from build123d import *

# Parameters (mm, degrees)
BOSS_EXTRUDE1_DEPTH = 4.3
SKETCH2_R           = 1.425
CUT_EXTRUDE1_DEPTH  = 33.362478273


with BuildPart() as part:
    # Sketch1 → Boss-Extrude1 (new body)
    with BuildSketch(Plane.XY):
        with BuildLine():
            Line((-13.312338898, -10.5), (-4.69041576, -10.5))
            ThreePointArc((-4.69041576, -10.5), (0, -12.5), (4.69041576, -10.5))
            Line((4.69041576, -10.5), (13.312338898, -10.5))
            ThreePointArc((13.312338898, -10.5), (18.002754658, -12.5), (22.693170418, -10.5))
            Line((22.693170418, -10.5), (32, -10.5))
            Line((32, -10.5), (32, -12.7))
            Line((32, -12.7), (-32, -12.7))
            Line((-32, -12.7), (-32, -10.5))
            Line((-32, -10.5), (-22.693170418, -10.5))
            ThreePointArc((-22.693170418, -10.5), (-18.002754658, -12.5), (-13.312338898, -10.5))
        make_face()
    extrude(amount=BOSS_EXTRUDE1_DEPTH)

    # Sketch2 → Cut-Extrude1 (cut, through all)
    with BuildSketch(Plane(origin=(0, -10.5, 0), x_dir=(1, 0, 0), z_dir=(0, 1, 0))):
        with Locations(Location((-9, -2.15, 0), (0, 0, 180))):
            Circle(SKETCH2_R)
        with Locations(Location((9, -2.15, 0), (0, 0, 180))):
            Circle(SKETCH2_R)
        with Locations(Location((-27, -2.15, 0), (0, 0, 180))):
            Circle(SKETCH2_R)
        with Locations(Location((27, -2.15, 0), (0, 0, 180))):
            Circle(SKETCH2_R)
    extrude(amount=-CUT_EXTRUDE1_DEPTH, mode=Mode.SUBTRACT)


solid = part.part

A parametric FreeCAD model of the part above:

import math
import FreeCAD as App
import Part
import Sketcher

V = App.Vector

doc = App.newDocument("Part")
body = doc.addObject("PartDesign::Body", "Body")

sketch1 = body.newObject("Sketcher::SketchObject", "Sketch")
sketch1.AttachmentSupport = (doc.getObject("XY_Plane"), [""])
sketch1.MapMode = "FlatFace"
sketch1.addGeometry([
    Part.LineSegment(V(-4.690416, -10.5, 0), V(-13.312339, -10.5, 0)),
    Part.ArcOfCircle(Part.Circle(V(-18.002755, -6, 0), V(0, 0, 1), 6.5), math.radians(-136.186939), math.radians(-43.813061)),
    Part.LineSegment(V(-22.69317, -10.5, 0), V(-32, -10.5, 0)),
    Part.LineSegment(V(-32, -10.5, 0), V(-32, -12.7, 0)),
    Part.LineSegment(V(-32, -12.7, 0), V(32, -12.7, 0)),
    Part.LineSegment(V(32, -12.7, 0), V(32, -10.5, 0)),
    Part.LineSegment(V(32, -10.5, 0), V(22.69317, -10.5, 0)),
    Part.ArcOfCircle(Part.Circle(V(18.002755, -6, 0), V(0, 0, 1), 6.5), math.radians(-136.186939), math.radians(-43.813061)),
    Part.LineSegment(V(13.312339, -10.5, 0), V(4.690416, -10.5, 0)),
    Part.ArcOfCircle(Part.Circle(V(0, -6, 0), V(0, 0, 1), 6.5), math.radians(-136.186939), math.radians(-43.813061)),
], False)
sketch1.addConstraint([
    Sketcher.Constraint("Coincident", 0, 2, 1, 2),
    Sketcher.Constraint("Coincident", 1, 1, 2, 1),
    Sketcher.Constraint("Coincident", 2, 2, 3, 1),
    Sketcher.Constraint("Coincident", 3, 2, 4, 1),
    Sketcher.Constraint("Coincident", 4, 2, 5, 1),
    Sketcher.Constraint("Coincident", 5, 2, 6, 1),
    Sketcher.Constraint("Coincident", 6, 2, 7, 2),
    Sketcher.Constraint("Coincident", 7, 1, 8, 1),
    Sketcher.Constraint("Coincident", 8, 2, 9, 2),
    Sketcher.Constraint("Coincident", 9, 1, 0, 1),
    Sketcher.Constraint("Horizontal", 0),
    Sketcher.Constraint("Horizontal", 2),
    Sketcher.Constraint("Vertical", 3),
    Sketcher.Constraint("Horizontal", 4),
    Sketcher.Constraint("Vertical", 5),
    Sketcher.Constraint("Horizontal", 6),
    Sketcher.Constraint("Horizontal", 8),
    Sketcher.Constraint("Equal", 1, 7),
    Sketcher.Constraint("Equal", 7, 9),
    Sketcher.Constraint("Symmetric", 1, 3, 7, 3, -2),
    Sketcher.Constraint("Symmetric", 2, 2, 5, 2, -2),
    Sketcher.Constraint("Symmetric", 8, 2, 9, 1, -2),
    Sketcher.Constraint("Horizontal", 7, 3, 9, 3),
    Sketcher.Constraint("Horizontal", 0, 2, 1, 1),
    Sketcher.Constraint("Radius", 1, 6.5),
    Sketcher.Constraint("DistanceX", 4, 1, 4, 2, 64.0),
    Sketcher.Constraint("DistanceY", 3, 2, 3, 1, 2.2),
    Sketcher.Constraint("DistanceY", 1, 3, -1, 1, 6.0),
    Sketcher.Constraint("DistanceY", 0, 2, -1, 1, 10.5),
    Sketcher.Constraint("DistanceX", 2, 2, 2, 1, 9.30683),
])
pad1 = body.newObject("PartDesign::Pad", "Pad")
pad1.Profile = sketch1
pad1.Length = 4.3

sketch2 = body.newObject("Sketcher::SketchObject", "Sketch001")
sketch2.AttachmentSupport = (doc.getObject("XZ_Plane"), [""])
sketch2.MapMode = "FlatFace"
sketch2.AttachmentOffset = App.Placement(V(0, 0, 10.5), App.Rotation())
sketch2.addGeometry([
    Part.Circle(V(-9, 2.15, 0), V(0, 0, 1), 1.425),
    Part.Circle(V(9, 2.15, 0), V(0, 0, 1), 1.425),
    Part.Circle(V(-27, 2.15, 0), V(0, 0, 1), 1.425),
    Part.Circle(V(27, 2.15, 0), V(0, 0, 1), 1.425),
], False)
sketch2.addConstraint([
    Sketcher.Constraint("Equal", 0, 1),
    Sketcher.Constraint("Equal", 1, 2),
    Sketcher.Constraint("Equal", 2, 3),
    Sketcher.Constraint("Symmetric", 0, 3, 1, 3, -2),
    Sketcher.Constraint("Symmetric", 2, 3, 3, 3, -2),
    Sketcher.Constraint("Horizontal", 1, 3, 2, 3),
    Sketcher.Constraint("Diameter", 0, 2.85),
    Sketcher.Constraint("DistanceX", 0, 3, -1, 1, 9.0),
    Sketcher.Constraint("DistanceX", 2, 3, -1, 1, 27.0),
    Sketcher.Constraint("DistanceY", -1, 1, 0, 3, 2.15),
])
pocket1 = body.newObject("PartDesign::Pocket", "Pocket")
pocket1.Profile = sketch2
pocket1.Type = "ThroughAll"
pocket1.Reversed = True

doc.recompute()
